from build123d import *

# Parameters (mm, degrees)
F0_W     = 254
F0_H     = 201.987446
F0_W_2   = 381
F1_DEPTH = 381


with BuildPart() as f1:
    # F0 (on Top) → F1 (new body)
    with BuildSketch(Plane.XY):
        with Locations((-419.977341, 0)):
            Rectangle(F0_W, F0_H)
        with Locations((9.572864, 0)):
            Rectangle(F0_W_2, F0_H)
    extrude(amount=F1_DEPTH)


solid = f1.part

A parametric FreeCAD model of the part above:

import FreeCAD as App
import Part
import Sketcher

V = App.Vector
Q = App.Units.Quantity


def add_polygon(sketch, points):
    """Adds a closed chain of lines whose ends are joined by coincident constraints."""
    first, n = sketch.GeometryCount, len(points)
    for a, b in zip(points, points[1:] + points[:1]):
        sketch.addGeometry(Part.LineSegment(App.Vector(*a, 0), App.Vector(*b, 0)), False)
    for i in range(n):
        sketch.addConstraint(Sketcher.Constraint("Coincident", first + i, 2, first + (i + 1) % n, 1))

doc = App.newDocument("Part")
params = doc.addObject("Spreadsheet::Sheet", "Params")
for row, (alias, value) in enumerate([
    ("sketch1_width", "10 in"),
    ("sketch1_width2", "15 in"),
    ("pad1_length", "15 in"),
], start=1):
    params.set(f"A{row}", alias)
    params.set(f"B{row}", "=" + value)
    params.setAlias(f"B{row}", alias)

body = doc.addObject("PartDesign::Body", "Body")
body.AllowCompound = True

# Sketch on XY plane
sketch1 = body.newObject("Sketcher::SketchObject", "Sketch")
sketch1.AttachmentSupport = (doc.getObject("XY_Plane"), [""])
sketch1.MapMode = "FlatFace"
add_polygon(sketch1, [(-546.977341, 100.993723), (-546.977341, -100.993723), (-292.977341, -100.993723), (-292.977341, 100.993723)])  # lines 0-3
add_polygon(sketch1, [(-180.927136, 100.993723), (-180.927136, -100.993723), (200.072864, -100.993723), (200.072864, 100.993723)])  # lines 4-7
sketch1.addConstraint(Sketcher.Constraint("Vertical", 0))
sketch1.addConstraint(Sketcher.Constraint("Horizontal", 1))
sketch1.addConstraint(Sketcher.Constraint("Vertical", 2))
sketch1.addConstraint(Sketcher.Constraint("Horizontal", 3))
sketch1.addConstraint(Sketcher.Constraint("Vertical", 4))
sketch1.addConstraint(Sketcher.Constraint("Horizontal", 5))
sketch1.addConstraint(Sketcher.Constraint("Vertical", 6))
sketch1.addConstraint(Sketcher.Constraint("Horizontal", 7))
sketch1.addConstraint(Sketcher.Constraint("Horizontal", 1, 2, 4, 2))
sketch1.addConstraint(Sketcher.Constraint("Horizontal", 3, 2, 6, 2))
sketch1.addConstraint(Sketcher.Constraint("DistanceX", 1, 1, 1, 2, Q("10 in")))
sketch1.addConstraint(Sketcher.Constraint("DistanceX", 5, 1, 5, 2, Q("15 in")))
sketch1.addConstraint(Sketcher.Constraint("DistanceY", 0, 2, 0, 1, 201.987446))
sketch1.addConstraint(Sketcher.Constraint("DistanceX", 0, 2, -1, 1, 546.977341))
sketch1.addConstraint(Sketcher.Constraint("DistanceY", 0, 2, -1, 1, 100.993723))
sketch1.addConstraint(Sketcher.Constraint("DistanceX", 4, 2, -1, 1, 180.927136))
sketch1.setExpression("Constraints[18]", "Params.sketch1_width")
sketch1.setExpression("Constraints[19]", "Params.sketch1_width2")
pad1 = body.newObject("PartDesign::Pad", "Pad")
pad1.Profile = sketch1
pad1.setExpression("Length", "Params.pad1_length")

doc.recompute()
